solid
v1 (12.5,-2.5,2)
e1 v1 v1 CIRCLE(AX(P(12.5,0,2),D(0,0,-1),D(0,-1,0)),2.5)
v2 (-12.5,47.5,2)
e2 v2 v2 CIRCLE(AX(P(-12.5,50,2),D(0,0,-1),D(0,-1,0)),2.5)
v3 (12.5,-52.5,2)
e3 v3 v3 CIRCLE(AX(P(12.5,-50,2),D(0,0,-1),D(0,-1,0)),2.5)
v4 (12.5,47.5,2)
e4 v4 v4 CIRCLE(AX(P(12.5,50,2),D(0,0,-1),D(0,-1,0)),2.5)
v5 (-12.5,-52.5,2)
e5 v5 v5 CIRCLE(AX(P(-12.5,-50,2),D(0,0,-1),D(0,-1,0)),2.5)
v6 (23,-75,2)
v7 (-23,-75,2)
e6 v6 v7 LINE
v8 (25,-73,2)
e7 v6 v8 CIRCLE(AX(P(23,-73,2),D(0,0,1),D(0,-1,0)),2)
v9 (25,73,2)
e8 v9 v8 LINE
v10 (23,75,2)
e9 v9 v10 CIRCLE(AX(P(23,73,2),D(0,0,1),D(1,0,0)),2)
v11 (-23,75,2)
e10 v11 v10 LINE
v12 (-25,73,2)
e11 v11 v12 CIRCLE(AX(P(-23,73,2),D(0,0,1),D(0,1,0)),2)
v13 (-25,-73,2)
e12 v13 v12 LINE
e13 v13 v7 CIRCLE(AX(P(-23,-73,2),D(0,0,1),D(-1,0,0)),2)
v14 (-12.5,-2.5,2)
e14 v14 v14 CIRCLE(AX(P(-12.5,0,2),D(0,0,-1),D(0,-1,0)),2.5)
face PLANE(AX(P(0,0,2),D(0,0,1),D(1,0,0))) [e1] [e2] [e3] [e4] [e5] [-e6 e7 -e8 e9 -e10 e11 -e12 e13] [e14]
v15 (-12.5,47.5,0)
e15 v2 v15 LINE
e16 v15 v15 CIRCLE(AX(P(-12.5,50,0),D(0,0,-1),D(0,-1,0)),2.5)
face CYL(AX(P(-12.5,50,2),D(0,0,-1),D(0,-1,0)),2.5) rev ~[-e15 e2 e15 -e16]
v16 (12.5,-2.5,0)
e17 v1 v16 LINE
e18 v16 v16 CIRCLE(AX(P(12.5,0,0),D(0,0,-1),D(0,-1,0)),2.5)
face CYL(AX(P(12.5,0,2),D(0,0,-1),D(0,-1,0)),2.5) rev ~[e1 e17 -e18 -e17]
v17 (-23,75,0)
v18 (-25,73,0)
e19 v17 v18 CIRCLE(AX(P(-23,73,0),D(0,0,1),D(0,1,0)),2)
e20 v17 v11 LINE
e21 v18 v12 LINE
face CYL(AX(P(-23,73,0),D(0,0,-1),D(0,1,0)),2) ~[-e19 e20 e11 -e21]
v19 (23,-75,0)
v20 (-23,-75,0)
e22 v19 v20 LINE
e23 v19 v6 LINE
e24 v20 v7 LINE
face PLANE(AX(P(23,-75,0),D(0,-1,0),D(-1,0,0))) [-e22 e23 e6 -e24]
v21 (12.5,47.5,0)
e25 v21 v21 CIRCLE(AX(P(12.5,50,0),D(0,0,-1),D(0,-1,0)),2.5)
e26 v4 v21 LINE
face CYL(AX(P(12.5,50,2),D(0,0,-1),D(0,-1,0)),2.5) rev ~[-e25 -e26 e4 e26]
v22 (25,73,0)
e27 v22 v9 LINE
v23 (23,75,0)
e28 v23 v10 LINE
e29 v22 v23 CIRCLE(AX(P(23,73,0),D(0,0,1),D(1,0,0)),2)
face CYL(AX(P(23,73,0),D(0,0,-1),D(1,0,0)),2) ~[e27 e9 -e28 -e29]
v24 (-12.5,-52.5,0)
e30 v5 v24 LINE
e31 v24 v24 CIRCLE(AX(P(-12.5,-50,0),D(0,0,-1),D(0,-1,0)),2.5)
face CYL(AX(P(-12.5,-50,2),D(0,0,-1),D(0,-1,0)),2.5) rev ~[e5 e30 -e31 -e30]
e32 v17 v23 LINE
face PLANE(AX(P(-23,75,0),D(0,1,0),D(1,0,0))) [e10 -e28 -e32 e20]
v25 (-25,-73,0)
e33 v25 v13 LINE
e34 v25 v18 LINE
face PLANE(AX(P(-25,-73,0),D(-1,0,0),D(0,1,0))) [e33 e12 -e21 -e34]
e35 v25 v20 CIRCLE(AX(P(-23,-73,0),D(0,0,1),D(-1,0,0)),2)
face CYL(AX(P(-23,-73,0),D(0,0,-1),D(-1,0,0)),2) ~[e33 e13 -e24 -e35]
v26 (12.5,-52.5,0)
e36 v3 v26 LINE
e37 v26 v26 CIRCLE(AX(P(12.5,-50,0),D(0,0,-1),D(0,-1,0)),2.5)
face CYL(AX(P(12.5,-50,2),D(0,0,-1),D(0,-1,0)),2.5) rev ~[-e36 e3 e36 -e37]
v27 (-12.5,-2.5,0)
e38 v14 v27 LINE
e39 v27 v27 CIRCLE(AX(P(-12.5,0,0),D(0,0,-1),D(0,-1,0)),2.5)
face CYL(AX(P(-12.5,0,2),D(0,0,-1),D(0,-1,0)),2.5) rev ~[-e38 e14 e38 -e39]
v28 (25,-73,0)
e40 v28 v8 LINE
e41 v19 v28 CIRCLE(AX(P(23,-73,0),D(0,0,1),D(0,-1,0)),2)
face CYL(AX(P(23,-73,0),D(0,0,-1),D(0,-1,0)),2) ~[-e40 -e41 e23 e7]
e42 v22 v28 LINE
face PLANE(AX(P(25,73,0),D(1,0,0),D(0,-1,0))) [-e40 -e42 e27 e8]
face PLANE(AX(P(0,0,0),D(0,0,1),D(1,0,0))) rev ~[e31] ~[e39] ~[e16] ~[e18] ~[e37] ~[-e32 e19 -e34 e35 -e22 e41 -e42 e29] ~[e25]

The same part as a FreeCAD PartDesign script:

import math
import FreeCAD as App
import Part
import Sketcher

doc = App.newDocument("Part")
body = doc.addObject("PartDesign::Body", "Body")

sketch1 = body.newObject("Sketcher::SketchObject", "Sketch")
sketch1.AttachmentSupport = (doc.getObject("XY_Plane"), [""])
sketch1.MapMode = "FlatFace"
sketch1.addGeometry([
    Part.LineSegment(App.Vector(23, 75, 0), App.Vector(-23, 75, 0)),
    Part.ArcOfCircle(Part.Circle(App.Vector(-23, 73, 0), App.Vector(0, 0, 1), 2), math.radians(90), math.radians(180)),
    Part.LineSegment(App.Vector(-25, 73, 0), App.Vector(-25, -73, 0)),
    Part.ArcOfCircle(Part.Circle(App.Vector(-23, -73, 0), App.Vector(0, 0, 1), 2), math.radians(180), math.radians(270)),
    Part.LineSegment(App.Vector(-23, -75, 0), App.Vector(23, -75, 0)),
    Part.ArcOfCircle(Part.Circle(App.Vector(23, -73, 0), App.Vector(0, 0, 1), 2), math.radians(-90), math.radians(0)),
    Part.LineSegment(App.Vector(25, -73, 0), App.Vector(25, 73, 0)),
    Part.ArcOfCircle(Part.Circle(App.Vector(23, 73, 0), App.Vector(0, 0, 1), 2), math.radians(0), math.radians(90)),
], False)
sketch1.addConstraint([
    Sketcher.Constraint("Tangent", 0, 2, 1, 1),
    Sketcher.Constraint("Tangent", 1, 2, 2, 1),
    Sketcher.Constraint("Tangent", 2, 2, 3, 1),
    Sketcher.Constraint("Tangent", 3, 2, 4, 1),
    Sketcher.Constraint("Tangent", 4, 2, 5, 1),
    Sketcher.Constraint("Tangent", 5, 2, 6, 1),
    Sketcher.Constraint("Tangent", 6, 2, 7, 1),
    Sketcher.Constraint("Tangent", 7, 2, 0, 1),
    Sketcher.Constraint("Horizontal", 0),
    Sketcher.Constraint("Vertical", 2),
    Sketcher.Constraint("Horizontal", 4),
    Sketcher.Constraint("Vertical", 6),
    Sketcher.Constraint("Equal", 1, 3),
    Sketcher.Constraint("Equal", 3, 5),
    Sketcher.Constraint("Equal", 5, 7),
    Sketcher.Constraint("Symmetric", 1, 3, 5, 3, -1, 1),
    Sketcher.Constraint("Radius", 1, 2.0),
    Sketcher.Constraint("DistanceY", -1, 1, 0, 2, 75.0),
    Sketcher.Constraint("DistanceX", 1, 2, -1, 1, 25.0),
])
pad1 = body.newObject("PartDesign::Pad", "Pad")
pad1.Profile = sketch1
pad1.Length = 2

sketch2 = body.newObject("Sketcher::SketchObject", "Sketch001")
sketch2.AttachmentSupport = (doc.getObject("XY_Plane"), [""])
sketch2.MapMode = "FlatFace"
sketch2.AttachmentOffset = App.Placement(App.Vector(0, 0, 2), App.Rotation())
sketch2.addGeometry([
    Part.Circle(App.Vector(-12.5, 50, 0), App.Vector(0, 0, 1), 2.5),
    Part.Circle(App.Vector(-12.5, 0, 0), App.Vector(0, 0, 1), 2.5),
    Part.Circle(App.Vector(-12.5, -50, 0), App.Vector(0, 0, 1), 2.5),
    Part.Circle(App.Vector(12.5, 50, 0), App.Vector(0, 0, 1), 2.5),
    Part.Circle(App.Vector(12.5, 0, 0), App.Vector(0, 0, 1), 2.5),
    Part.Circle(App.Vector(12.5, -50, 0), App.Vector(0, 0, 1), 2.5),
], False)
sketch2.addConstraint([
    Sketcher.Constraint("Equal", 0, 1),
    Sketcher.Constraint("Equal", 1, 2),
    Sketcher.Constraint("Equal", 2, 3),
    Sketcher.Constraint("Equal", 3, 4),
    Sketcher.Constraint("Equal", 4, 5),
    Sketcher.Constraint("Symmetric", 2, 3, 3, 3, -1, 1),
    Sketcher.Constraint("Symmetric", 1, 3, 4, 3, -1, 1),
    Sketcher.Constraint("Symmetric", 0, 3, 5, 3, -1, 1),
    Sketcher.Constraint("Symmetric", 0, 3, 3, 3, -2),
    Sketcher.Constraint("PointOnObject", 1, 3, -1),
    Sketcher.Constraint("Vertical", 0, 3, 1, 3),
    Sketcher.Constraint("Diameter", 0, 5.0),
    Sketcher.Constraint("DistanceY", -1, 1, 0, 3, 50.0),
    Sketcher.Constraint("DistanceX", 0, 3, 3, 3, 25.0),
])
doc.recompute()
hole = body.newObject("PartDesign::Hole", "Hole")
hole.Profile = sketch2
hole.ThreadType = "None"
hole.Diameter = 5
hole.DepthType = "ThroughAll"

doc.recompute()
